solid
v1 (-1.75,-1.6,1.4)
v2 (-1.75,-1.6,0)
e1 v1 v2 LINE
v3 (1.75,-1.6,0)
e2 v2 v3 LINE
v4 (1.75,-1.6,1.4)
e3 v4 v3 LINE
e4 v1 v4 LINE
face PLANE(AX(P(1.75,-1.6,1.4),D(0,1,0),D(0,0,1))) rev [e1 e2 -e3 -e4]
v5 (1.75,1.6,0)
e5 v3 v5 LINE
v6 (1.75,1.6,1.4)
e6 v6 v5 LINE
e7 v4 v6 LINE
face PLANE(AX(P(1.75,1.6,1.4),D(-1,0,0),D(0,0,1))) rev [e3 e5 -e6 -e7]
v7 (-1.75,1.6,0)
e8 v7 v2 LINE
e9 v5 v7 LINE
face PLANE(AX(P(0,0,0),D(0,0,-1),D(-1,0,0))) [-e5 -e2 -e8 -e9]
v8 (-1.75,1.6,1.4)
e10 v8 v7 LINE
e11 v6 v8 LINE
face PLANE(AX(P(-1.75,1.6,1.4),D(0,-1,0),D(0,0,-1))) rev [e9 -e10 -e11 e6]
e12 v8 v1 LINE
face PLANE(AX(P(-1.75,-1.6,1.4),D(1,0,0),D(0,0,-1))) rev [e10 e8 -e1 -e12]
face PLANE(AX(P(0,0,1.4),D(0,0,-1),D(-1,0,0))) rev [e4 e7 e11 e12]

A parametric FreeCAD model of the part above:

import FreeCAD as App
import Part
import Sketcher
from FreeCAD import Vector

doc = App.newDocument("Part")
body = doc.addObject("PartDesign::Body", "Body")

# Sketch on XY plane
sketch1 = body.newObject("Sketcher::SketchObject", "Sketch")
sketch1.AttachmentSupport = (doc.getObject("XY_Plane"), [""])
sketch1.MapMode = "FlatFace"
sketch1.addGeometry([
    Part.LineSegment(Vector(-1.8, 1.6, 0), Vector(-1.8, -1.6, 0)),
    Part.LineSegment(Vector(-1.8, -1.6, 0), Vector(1.8, -1.6, 0)),
    Part.LineSegment(Vector(1.8, -1.6, 0), Vector(1.8, 1.6, 0)),
    Part.LineSegment(Vector(1.8, 1.6, 0), Vector(-1.8, 1.6, 0)),
], False)
sketch1.addConstraint([
    Sketcher.Constraint("Coincident", 0, 2, 1, 1),
    Sketcher.Constraint("Coincident", 1, 2, 2, 1),
    Sketcher.Constraint("Coincident", 2, 2, 3, 1),
    Sketcher.Constraint("Coincident", 3, 2, 0, 1),
    Sketcher.Constraint("Vertical", 0),
    Sketcher.Constraint("Horizontal", 1),
    Sketcher.Constraint("Vertical", 2),
    Sketcher.Constraint("Horizontal", 3),
    Sketcher.Constraint("Symmetric", 0, 2, 2, 2, -1, 1),
    Sketcher.Constraint("DistanceX", 1, 1, 1, 2, 3.5),
    Sketcher.Constraint("DistanceY", 0, 2, 0, 1, 3.2),
])
pad1 = body.newObject("PartDesign::Pad", "Pad")
pad1.Profile = sketch1
pad1.Length = 1.4

doc.recompute()
